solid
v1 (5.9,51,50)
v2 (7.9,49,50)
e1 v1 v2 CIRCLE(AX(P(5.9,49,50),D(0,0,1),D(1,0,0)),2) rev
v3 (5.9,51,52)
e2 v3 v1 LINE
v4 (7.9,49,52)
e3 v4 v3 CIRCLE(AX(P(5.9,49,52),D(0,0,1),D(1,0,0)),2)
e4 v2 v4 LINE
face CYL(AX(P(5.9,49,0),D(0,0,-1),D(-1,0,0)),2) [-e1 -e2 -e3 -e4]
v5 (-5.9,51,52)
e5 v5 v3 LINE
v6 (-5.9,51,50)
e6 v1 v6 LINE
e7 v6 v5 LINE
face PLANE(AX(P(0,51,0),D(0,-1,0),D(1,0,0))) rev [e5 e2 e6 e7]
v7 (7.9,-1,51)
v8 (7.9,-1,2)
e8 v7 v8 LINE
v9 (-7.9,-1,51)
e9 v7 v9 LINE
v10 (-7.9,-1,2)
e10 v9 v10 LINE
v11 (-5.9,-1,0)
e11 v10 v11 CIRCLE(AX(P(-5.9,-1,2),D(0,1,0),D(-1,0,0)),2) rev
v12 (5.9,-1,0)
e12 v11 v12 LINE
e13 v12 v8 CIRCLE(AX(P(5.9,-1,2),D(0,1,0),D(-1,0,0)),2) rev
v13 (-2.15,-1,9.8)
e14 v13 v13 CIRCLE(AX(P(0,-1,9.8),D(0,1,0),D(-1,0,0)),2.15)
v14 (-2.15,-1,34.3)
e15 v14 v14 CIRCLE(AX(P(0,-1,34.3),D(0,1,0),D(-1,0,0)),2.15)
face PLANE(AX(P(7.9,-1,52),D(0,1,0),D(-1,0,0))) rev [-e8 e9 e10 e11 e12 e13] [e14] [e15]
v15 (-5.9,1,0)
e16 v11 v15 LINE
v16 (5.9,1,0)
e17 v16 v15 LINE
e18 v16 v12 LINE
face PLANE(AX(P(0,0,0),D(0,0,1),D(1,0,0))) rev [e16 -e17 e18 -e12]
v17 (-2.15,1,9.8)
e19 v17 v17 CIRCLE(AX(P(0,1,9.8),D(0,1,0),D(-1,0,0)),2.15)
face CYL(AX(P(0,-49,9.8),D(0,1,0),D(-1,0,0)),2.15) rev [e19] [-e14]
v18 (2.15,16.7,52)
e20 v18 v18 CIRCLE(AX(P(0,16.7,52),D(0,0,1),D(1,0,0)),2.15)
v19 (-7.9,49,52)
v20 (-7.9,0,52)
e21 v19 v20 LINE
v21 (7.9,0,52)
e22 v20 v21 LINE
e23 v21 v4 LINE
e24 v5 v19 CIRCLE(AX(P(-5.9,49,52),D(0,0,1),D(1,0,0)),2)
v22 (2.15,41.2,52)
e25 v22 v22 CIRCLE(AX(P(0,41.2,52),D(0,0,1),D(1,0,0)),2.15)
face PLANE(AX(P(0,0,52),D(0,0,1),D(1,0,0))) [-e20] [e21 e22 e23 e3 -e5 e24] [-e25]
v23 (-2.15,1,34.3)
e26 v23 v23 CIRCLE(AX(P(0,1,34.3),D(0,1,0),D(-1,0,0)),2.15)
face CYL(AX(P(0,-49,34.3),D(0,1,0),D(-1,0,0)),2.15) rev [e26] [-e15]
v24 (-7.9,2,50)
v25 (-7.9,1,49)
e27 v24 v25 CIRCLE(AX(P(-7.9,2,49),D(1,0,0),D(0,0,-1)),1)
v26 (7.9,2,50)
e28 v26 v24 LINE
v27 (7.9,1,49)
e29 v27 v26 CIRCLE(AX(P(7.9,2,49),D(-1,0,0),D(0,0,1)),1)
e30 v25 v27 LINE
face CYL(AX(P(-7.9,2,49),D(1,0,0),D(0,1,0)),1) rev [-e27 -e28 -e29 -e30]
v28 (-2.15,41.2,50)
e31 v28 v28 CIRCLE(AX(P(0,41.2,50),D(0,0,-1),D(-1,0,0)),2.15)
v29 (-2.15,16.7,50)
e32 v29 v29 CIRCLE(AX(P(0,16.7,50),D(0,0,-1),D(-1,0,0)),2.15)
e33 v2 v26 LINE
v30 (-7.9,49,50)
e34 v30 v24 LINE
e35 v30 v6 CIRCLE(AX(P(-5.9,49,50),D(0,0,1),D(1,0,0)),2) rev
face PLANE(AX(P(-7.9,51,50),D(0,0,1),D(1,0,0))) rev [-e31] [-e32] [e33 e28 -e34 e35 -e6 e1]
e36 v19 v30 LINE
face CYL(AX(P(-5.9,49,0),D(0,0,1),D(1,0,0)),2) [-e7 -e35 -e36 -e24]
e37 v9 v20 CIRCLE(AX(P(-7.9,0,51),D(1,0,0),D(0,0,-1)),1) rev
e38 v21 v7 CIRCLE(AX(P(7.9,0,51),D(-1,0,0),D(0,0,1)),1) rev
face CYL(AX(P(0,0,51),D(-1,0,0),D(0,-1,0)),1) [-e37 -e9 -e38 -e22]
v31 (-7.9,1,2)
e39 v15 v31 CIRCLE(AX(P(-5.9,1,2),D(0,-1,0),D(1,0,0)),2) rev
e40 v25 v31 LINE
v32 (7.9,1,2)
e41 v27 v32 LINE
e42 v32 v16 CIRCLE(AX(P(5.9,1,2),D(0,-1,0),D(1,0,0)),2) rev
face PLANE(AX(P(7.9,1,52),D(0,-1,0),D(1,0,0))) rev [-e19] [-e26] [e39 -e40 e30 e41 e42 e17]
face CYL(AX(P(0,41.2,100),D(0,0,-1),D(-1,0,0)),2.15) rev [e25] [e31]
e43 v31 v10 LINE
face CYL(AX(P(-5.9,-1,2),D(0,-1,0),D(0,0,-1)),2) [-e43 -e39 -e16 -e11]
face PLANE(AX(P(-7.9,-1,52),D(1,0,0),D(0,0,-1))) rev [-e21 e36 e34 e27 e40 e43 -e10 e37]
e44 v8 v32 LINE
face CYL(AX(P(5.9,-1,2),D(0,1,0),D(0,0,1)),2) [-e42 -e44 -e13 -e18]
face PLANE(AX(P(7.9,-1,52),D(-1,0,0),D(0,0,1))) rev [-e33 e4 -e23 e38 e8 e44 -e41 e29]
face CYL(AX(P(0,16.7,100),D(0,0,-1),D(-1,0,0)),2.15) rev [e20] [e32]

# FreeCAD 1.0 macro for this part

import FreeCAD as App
import Part
import Sketcher

V = App.Vector
Q = App.Units.Quantity


def edges_at(feature, points):
    """Names of the edges that pass closest to the given points."""
    edges = feature.Shape.Edges
    near = lambda p: min(range(len(edges)), key=lambda i: edges[i].distToShape(Part.Vertex(*p))[0])
    return sorted({f"Edge{near(p) + 1}" for p in points})

doc = App.newDocument("Part")
body = doc.addObject("PartDesign::Body", "Body")

# Sketch on XY plane
sketch1 = body.newObject("Sketcher::SketchObject", "Sketch")
sketch1.AttachmentSupport = (doc.getObject("XY_Plane"), [""])
sketch1.MapMode = "FlatFace"
sketch1.addGeometry([
    Part.LineSegment(V(-7.9, 1, 0), V(-7.9, -1, 0)),
    Part.LineSegment(V(-7.9, -1, 0), V(7.9, -1, 0)),
    Part.LineSegment(V(7.9, -1, 0), V(7.9, 1, 0)),
    Part.LineSegment(V(7.9, 1, 0), V(-7.9, 1, 0)),
], False)
sketch1.addConstraint([
    Sketcher.Constraint("Coincident", 0, 2, 1, 1),
    Sketcher.Constraint("Coincident", 1, 2, 2, 1),
    Sketcher.Constraint("Coincident", 2, 2, 3, 1),
    Sketcher.Constraint("Coincident", 3, 2, 0, 1),
    Sketcher.Constraint("Vertical", 0),
    Sketcher.Constraint("Horizontal", 1),
    Sketcher.Constraint("Vertical", 2),
    Sketcher.Constraint("Horizontal", 3),
    Sketcher.Constraint("Symmetric", 0, 2, 2, 2, -1, 1),
    Sketcher.Constraint("DistanceY", 0, 2, 0, 1, Q("2 mm")),
    Sketcher.Constraint("DistanceX", 1, 1, 1, 2, Q("15.8 mm")),
])
pad1 = body.newObject("PartDesign::Pad", "Pad")
pad1.Profile = sketch1
pad1.Length = 52

# Sketch on XZ plane
sketch2 = body.newObject("Sketcher::SketchObject", "Sketch001")
sketch2.AttachmentSupport = (doc.getObject("XZ_Plane"), [""])
sketch2.MapMode = "FlatFace"
sketch2.AttachmentOffset = App.Placement(V(0, 0, -1), App.Rotation())
sketch2.addGeometry([
    Part.LineSegment(V(-7.9, 50, 0), V(-7.9, 52, 0)),
    Part.LineSegment(V(-7.9, 52, 0), V(7.9, 52, 0)),
    Part.LineSegment(V(7.9, 52, 0), V(7.9, 50, 0)),
    Part.LineSegment(V(7.9, 50, 0), V(-7.9, 50, 0)),
], False)
sketch2.addConstraint([
    Sketcher.Constraint("Coincident", 0, 2, 1, 1),
    Sketcher.Constraint("Coincident", 1, 2, 2, 1),
    Sketcher.Constraint("Coincident", 2, 2, 3, 1),
    Sketcher.Constraint("Coincident", 3, 2, 0, 1),
    Sketcher.Constraint("Vertical", 0),
    Sketcher.Constraint("Horizontal", 1),
    Sketcher.Constraint("Vertical", 2),
    Sketcher.Constraint("Horizontal", 3),
    Sketcher.Constraint("DistanceY", 0, 1, 0, 2, Q("2 mm")),
    Sketcher.Constraint("DistanceX", 1, 1, 1, 2, Q("15.8 mm")),
    Sketcher.Constraint("DistanceY", -1, 1, 0, 2, Q("52 mm")),
    Sketcher.Constraint("DistanceX", 0, 2, -1, 1, Q("7.9 mm")),
])
pad2 = body.newObject("PartDesign::Pad", "Pad001")
pad2.Profile = sketch2
pad2.Length = 50
pad2.Reversed = True
doc.recompute()

fillet = body.newObject("PartDesign::Fillet", "Fillet")
fillet.Base = (pad2, edges_at(pad2, [(0, -1, 52)]))
fillet.Radius = 1
doc.recompute()

fillet2 = body.newObject("PartDesign::Fillet", "Fillet001")
fillet2.Base = (fillet, edges_at(fillet, [(0, 1, 50)]))
fillet2.Radius = 1
doc.recompute()

fillet3 = body.newObject("PartDesign::Fillet", "Fillet002")
fillet3.Base = (fillet2, edges_at(fillet2, [(7.9, 51, 51)]))
fillet3.Radius = 2
doc.recompute()

fillet4 = body.newObject("PartDesign::Fillet", "Fillet003")
fillet4.Base = (fillet3, edges_at(fillet3, [(-7.9, 51, 51), (7.9, 0, 0), (-7.9, 0, 0)]))
fillet4.Radius = 2

# Sketch on XY plane
sketch3 = body.newObject("Sketcher::SketchObject", "Sketch002")
sketch3.AttachmentSupport = (doc.getObject("XY_Plane"), [""])
sketch3.MapMode = "FlatFace"
sketch3.AttachmentOffset = App.Placement(V(0, 0, 50), App.Rotation())
sketch3.addGeometry([
    Part.Circle(V(0, 41.2, 0), V(0, 0, 1), 2.15),
    Part.Circle(V(0, 16.7, 0), V(0, 0, 1), 2.15),
], False)
sketch3.addConstraint([
    Sketcher.Constraint("Equal", 0, 1),
    Sketcher.Constraint("PointOnObject", 0, 3, -2),
    Sketcher.Constraint("PointOnObject", 1, 3, -2),
    Sketcher.Constraint("Diameter", 0, Q("4.3 mm")),
    Sketcher.Constraint("DistanceY", -1, 1, 0, 3, Q("41.2 mm")),
    Sketcher.Constraint("DistanceY", -1, 1, 1, 3, Q("16.7 mm")),
])
pocket1 = body.newObject("PartDesign::Pocket", "Pocket")
pocket1.Profile = sketch3
pocket1.Length = 50
pocket1.Reversed = True

# Sketch on XZ plane
sketch4 = body.newObject("Sketcher::SketchObject", "Sketch003")
sketch4.AttachmentSupport = (doc.getObject("XZ_Plane"), [""])
sketch4.MapMode = "FlatFace"
sketch4.AttachmentOffset = App.Placement(V(0, 0, -1), App.Rotation())
sketch4.addGeometry([
    Part.Circle(V(0, 9.8, 0), V(0, 0, 1), 2.15),
    Part.Circle(V(0, 34.3, 0), V(0, 0, 1), 2.15),
], False)
sketch4.addConstraint([
    Sketcher.Constraint("Equal", 0, 1),
    Sketcher.Constraint("PointOnObject", 0, 3, -2),
    Sketcher.Constraint("PointOnObject", 1, 3, -2),
    Sketcher.Constraint("Diameter", 0, Q("4.3 mm")),
    Sketcher.Constraint("DistanceY", -1, 1, 0, 3, Q("9.8 mm")),
    Sketcher.Constraint("DistanceY", -1, 1, 1, 3, Q("34.3 mm")),
])
pocket2 = body.newObject("PartDesign::Pocket", "Pocket001")
pocket2.Profile = sketch4
pocket2.Length = 50
pocket2.Reversed = True

doc.recompute()
